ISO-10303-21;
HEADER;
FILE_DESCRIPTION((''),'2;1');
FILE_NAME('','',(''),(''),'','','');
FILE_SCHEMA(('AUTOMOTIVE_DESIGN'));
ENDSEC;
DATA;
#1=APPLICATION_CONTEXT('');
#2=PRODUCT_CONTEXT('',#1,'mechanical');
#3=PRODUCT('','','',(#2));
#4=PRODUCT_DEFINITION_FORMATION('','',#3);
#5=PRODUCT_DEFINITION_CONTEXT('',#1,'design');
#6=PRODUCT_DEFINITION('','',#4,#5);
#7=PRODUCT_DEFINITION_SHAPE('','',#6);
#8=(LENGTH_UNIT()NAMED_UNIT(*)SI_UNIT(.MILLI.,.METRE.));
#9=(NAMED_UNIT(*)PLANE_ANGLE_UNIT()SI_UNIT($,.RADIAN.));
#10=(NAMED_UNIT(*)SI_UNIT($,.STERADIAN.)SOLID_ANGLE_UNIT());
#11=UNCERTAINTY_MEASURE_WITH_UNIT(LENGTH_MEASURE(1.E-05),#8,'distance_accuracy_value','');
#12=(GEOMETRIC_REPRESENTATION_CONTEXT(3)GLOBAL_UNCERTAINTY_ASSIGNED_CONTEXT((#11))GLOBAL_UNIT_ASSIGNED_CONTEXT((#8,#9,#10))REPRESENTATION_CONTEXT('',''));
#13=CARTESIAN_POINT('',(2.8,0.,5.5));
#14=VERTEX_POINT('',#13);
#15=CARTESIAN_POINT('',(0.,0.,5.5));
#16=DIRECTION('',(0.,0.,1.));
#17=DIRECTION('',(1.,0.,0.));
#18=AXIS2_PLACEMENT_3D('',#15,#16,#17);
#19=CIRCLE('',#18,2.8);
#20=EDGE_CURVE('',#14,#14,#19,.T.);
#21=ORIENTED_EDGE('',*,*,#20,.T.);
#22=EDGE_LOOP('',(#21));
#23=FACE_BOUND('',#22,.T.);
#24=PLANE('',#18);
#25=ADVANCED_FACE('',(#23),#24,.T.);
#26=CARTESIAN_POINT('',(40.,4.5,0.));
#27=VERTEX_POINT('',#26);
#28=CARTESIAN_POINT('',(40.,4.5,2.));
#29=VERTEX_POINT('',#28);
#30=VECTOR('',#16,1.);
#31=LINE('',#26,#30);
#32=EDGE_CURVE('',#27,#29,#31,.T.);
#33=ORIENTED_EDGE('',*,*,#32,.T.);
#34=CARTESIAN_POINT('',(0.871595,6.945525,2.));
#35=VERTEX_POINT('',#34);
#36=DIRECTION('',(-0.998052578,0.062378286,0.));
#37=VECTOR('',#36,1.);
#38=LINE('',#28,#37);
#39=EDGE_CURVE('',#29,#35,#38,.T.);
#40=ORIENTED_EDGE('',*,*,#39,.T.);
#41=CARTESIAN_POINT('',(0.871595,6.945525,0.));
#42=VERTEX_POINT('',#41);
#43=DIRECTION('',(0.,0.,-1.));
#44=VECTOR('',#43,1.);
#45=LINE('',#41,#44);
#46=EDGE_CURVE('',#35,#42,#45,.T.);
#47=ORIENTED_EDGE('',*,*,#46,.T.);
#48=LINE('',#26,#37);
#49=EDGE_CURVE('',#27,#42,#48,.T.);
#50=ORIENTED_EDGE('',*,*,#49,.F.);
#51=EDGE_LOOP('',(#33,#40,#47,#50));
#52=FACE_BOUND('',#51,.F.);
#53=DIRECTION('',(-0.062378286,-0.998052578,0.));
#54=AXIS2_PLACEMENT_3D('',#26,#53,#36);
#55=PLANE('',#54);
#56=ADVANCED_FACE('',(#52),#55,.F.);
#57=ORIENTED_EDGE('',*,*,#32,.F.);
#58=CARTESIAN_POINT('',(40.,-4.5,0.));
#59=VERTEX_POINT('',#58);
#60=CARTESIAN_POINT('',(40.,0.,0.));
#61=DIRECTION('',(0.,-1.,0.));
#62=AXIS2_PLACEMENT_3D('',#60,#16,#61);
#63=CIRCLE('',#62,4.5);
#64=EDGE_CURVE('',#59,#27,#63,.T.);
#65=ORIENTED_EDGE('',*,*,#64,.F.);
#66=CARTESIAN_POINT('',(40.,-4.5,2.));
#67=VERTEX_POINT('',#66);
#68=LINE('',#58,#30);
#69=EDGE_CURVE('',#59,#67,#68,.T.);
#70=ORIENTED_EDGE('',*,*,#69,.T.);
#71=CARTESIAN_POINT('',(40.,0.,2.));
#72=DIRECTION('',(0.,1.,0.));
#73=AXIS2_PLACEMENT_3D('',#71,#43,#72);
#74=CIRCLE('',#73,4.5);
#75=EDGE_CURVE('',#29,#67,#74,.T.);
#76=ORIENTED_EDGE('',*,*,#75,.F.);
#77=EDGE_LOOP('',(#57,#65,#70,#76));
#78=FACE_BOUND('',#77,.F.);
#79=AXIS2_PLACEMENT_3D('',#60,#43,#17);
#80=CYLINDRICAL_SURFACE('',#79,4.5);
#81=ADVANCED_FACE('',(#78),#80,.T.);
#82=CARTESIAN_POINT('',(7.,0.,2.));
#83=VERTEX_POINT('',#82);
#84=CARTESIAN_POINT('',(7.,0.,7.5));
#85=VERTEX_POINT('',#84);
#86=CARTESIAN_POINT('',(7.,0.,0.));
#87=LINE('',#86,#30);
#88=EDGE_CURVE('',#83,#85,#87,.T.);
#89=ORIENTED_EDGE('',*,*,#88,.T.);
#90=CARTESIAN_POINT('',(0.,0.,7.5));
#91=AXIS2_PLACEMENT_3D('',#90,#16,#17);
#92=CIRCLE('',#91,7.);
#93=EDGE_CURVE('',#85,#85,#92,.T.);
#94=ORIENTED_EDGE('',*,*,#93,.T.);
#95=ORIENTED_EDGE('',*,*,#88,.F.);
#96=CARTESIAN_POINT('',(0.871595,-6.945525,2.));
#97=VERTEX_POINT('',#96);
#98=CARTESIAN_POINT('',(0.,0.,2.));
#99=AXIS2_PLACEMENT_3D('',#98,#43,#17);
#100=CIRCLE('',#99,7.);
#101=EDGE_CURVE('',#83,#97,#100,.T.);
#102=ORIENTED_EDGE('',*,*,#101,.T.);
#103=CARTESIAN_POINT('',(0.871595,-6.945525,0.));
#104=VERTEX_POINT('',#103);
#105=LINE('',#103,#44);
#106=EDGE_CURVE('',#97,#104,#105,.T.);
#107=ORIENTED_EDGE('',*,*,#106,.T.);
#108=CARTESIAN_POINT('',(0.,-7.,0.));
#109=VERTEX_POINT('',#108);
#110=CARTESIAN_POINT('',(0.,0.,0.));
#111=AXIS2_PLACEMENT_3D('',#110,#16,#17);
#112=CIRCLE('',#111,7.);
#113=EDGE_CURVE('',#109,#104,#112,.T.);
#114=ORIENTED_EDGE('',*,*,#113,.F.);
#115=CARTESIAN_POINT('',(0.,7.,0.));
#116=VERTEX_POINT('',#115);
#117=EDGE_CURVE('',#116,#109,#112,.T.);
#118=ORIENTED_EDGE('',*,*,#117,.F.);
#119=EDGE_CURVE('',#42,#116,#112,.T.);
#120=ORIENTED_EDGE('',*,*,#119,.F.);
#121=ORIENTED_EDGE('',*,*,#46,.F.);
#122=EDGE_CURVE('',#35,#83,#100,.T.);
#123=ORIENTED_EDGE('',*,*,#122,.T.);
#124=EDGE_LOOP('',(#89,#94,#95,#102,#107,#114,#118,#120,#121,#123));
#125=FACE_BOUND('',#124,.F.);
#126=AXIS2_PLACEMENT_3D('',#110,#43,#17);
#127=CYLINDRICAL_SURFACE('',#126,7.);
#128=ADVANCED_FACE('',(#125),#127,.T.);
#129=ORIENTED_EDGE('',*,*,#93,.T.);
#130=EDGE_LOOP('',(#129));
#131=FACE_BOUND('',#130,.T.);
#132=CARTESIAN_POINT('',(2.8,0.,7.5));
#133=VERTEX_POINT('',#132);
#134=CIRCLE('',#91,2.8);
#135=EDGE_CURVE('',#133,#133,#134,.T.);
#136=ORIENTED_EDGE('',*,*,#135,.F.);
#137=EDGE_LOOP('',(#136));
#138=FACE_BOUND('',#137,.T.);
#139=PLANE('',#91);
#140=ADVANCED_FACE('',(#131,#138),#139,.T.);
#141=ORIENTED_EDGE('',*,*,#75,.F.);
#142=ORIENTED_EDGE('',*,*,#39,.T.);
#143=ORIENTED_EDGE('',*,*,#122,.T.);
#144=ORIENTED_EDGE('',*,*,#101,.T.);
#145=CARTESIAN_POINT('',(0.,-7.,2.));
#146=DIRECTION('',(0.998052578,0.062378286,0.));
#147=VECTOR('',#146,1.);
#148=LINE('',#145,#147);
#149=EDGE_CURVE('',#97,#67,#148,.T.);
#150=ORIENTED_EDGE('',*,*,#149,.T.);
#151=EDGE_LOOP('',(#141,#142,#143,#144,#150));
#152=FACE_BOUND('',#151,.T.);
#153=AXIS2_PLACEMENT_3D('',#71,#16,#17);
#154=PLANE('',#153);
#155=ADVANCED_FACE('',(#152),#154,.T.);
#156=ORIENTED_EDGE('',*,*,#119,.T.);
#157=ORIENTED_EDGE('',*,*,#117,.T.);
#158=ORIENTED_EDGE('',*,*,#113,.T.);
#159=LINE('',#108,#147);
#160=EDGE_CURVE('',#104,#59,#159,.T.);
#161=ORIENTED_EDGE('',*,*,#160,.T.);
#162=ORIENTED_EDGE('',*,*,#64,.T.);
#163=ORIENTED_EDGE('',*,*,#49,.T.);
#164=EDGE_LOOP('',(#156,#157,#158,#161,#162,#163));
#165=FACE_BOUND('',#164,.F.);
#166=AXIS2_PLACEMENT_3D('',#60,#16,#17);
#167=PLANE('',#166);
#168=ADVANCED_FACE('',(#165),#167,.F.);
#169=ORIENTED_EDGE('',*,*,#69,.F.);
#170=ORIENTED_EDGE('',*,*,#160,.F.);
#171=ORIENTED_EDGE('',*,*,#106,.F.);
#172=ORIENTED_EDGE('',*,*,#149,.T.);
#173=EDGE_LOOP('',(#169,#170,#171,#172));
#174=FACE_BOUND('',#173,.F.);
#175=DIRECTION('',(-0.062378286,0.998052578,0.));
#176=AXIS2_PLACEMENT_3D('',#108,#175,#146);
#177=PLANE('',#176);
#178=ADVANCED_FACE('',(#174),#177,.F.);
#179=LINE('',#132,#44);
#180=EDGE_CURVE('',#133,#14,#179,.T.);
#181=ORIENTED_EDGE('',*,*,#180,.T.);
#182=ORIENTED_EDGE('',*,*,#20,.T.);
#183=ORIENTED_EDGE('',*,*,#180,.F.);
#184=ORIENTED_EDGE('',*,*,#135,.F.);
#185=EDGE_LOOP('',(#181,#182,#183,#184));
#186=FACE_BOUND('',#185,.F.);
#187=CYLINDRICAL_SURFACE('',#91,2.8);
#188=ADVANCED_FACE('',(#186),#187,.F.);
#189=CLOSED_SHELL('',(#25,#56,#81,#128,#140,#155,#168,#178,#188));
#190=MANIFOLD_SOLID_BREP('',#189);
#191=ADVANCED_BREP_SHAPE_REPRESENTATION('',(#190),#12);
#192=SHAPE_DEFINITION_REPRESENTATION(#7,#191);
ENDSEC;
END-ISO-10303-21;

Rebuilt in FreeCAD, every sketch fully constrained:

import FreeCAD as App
import Part
import Sketcher
Q = App.Units.Quantity

doc = App.newDocument("Part")
body = doc.addObject("PartDesign::Body", "Body")

# Sketch on XY plane
sketch1 = body.newObject("Sketcher::SketchObject", "Sketch")
sketch1.AttachmentSupport = (doc.getObject("XY_Plane"), [""])
sketch1.MapMode = "FlatFace"
sketch1.addGeometry(Part.Circle(App.Vector(40, 0, 0), App.Vector(0, 0, 1), 4.5), False)
sketch1.addConstraint([
    Sketcher.Constraint("PointOnObject", 0, 3, -1),
    Sketcher.Constraint("Diameter", 0, Q("9 mm")),
    Sketcher.Constraint("DistanceX", -1, 1, 0, 3, Q("40 mm")),
])
pad1 = body.newObject("PartDesign::Pad", "Pad")
pad1.Profile = sketch1
pad1.Length = 2
body2 = doc.addObject("PartDesign::Body", "Body001")

# Sketch on XY plane
sketch2 = body2.newObject("Sketcher::SketchObject", "Sketch001")
sketch2.AttachmentSupport = (doc.getObject("XY_Plane001"), [""])
sketch2.MapMode = "FlatFace"
sketch2.addGeometry(Part.Circle(App.Vector(0, 0, 0), App.Vector(0, 0, 1), 7), False)
sketch2.addConstraint([
    Sketcher.Constraint("Coincident", 0, 3, -1, 1),
    Sketcher.Constraint("Diameter", 0, Q("14 mm")),
])
pad2 = body2.newObject("PartDesign::Pad", "Pad001")
pad2.Profile = sketch2
pad2.Length = 7.5
body3 = doc.addObject("PartDesign::Body", "Body002")

# Sketch on XY plane
sketch3 = body3.newObject("Sketcher::SketchObject", "Sketch002")
sketch3.AttachmentSupport = (doc.getObject("XY_Plane002"), [""])
sketch3.MapMode = "FlatFace"
sketch3.addGeometry([
    Part.LineSegment(App.Vector(40, 4, 0), App.Vector(0, 7, 0)),
    Part.LineSegment(App.Vector(0, 7, 0), App.Vector(0, -7, 0)),
    Part.LineSegment(App.Vector(0, -7, 0), App.Vector(40, -4, 0)),
    Part.LineSegment(App.Vector(40, -4, 0), App.Vector(40, 4, 0)),
], False)
sketch3.addConstraint([
    Sketcher.Constraint("Coincident", 0, 2, 1, 1),
    Sketcher.Constraint("Coincident", 1, 2, 2, 1),
    Sketcher.Constraint("Coincident", 2, 2, 3, 1),
    Sketcher.Constraint("Coincident", 3, 2, 0, 1),
    Sketcher.Constraint("Vertical", 1),
    Sketcher.Constraint("Vertical", 3),
    Sketcher.Constraint("Symmetric", 0, 2, 1, 2, -1, 1),
    Sketcher.Constraint("Equal", 0, 2),
    Sketcher.Constraint("DistanceY", 1, 2, 1, 1, Q("14 mm")),
    Sketcher.Constraint("DistanceY", 3, 1, 3, 2, Q("9 mm")),
    Sketcher.Constraint("DistanceX", -1, 1, 2, 2, Q("40 mm")),
])
pad3 = body3.newObject("PartDesign::Pad", "Pad002")
pad3.Profile = sketch3
pad3.Length = 2
doc.recompute()

boolean = body3.newObject("PartDesign::Boolean", "Boolean")
boolean.Type = "Fuse"
boolean.addObjects([body2])
doc.recompute()

boolean2 = body3.newObject("PartDesign::Boolean", "Boolean001")
boolean2.Type = "Fuse"
boolean2.addObjects([body])

# Sketch on XY plane
sketch4 = body3.newObject("Sketcher::SketchObject", "Sketch003")
sketch4.AttachmentSupport = (doc.getObject("XY_Plane002"), [""])
sketch4.MapMode = "FlatFace"
sketch4.AttachmentOffset = App.Placement(App.Vector(0, 0, 7.5), App.Rotation())
sketch4.addGeometry(Part.Circle(App.Vector(0, 0, 0), App.Vector(0, 0, 1), 2.8), False)
sketch4.addConstraint([
    Sketcher.Constraint("Coincident", 0, 3, -1, 1),
    Sketcher.Constraint("Diameter", 0, Q("5.6 mm")),
])
pocket1 = body3.newObject("PartDesign::Pocket", "Pocket")
pocket1.Profile = sketch4
pocket1.Length = 2

doc.recompute()
